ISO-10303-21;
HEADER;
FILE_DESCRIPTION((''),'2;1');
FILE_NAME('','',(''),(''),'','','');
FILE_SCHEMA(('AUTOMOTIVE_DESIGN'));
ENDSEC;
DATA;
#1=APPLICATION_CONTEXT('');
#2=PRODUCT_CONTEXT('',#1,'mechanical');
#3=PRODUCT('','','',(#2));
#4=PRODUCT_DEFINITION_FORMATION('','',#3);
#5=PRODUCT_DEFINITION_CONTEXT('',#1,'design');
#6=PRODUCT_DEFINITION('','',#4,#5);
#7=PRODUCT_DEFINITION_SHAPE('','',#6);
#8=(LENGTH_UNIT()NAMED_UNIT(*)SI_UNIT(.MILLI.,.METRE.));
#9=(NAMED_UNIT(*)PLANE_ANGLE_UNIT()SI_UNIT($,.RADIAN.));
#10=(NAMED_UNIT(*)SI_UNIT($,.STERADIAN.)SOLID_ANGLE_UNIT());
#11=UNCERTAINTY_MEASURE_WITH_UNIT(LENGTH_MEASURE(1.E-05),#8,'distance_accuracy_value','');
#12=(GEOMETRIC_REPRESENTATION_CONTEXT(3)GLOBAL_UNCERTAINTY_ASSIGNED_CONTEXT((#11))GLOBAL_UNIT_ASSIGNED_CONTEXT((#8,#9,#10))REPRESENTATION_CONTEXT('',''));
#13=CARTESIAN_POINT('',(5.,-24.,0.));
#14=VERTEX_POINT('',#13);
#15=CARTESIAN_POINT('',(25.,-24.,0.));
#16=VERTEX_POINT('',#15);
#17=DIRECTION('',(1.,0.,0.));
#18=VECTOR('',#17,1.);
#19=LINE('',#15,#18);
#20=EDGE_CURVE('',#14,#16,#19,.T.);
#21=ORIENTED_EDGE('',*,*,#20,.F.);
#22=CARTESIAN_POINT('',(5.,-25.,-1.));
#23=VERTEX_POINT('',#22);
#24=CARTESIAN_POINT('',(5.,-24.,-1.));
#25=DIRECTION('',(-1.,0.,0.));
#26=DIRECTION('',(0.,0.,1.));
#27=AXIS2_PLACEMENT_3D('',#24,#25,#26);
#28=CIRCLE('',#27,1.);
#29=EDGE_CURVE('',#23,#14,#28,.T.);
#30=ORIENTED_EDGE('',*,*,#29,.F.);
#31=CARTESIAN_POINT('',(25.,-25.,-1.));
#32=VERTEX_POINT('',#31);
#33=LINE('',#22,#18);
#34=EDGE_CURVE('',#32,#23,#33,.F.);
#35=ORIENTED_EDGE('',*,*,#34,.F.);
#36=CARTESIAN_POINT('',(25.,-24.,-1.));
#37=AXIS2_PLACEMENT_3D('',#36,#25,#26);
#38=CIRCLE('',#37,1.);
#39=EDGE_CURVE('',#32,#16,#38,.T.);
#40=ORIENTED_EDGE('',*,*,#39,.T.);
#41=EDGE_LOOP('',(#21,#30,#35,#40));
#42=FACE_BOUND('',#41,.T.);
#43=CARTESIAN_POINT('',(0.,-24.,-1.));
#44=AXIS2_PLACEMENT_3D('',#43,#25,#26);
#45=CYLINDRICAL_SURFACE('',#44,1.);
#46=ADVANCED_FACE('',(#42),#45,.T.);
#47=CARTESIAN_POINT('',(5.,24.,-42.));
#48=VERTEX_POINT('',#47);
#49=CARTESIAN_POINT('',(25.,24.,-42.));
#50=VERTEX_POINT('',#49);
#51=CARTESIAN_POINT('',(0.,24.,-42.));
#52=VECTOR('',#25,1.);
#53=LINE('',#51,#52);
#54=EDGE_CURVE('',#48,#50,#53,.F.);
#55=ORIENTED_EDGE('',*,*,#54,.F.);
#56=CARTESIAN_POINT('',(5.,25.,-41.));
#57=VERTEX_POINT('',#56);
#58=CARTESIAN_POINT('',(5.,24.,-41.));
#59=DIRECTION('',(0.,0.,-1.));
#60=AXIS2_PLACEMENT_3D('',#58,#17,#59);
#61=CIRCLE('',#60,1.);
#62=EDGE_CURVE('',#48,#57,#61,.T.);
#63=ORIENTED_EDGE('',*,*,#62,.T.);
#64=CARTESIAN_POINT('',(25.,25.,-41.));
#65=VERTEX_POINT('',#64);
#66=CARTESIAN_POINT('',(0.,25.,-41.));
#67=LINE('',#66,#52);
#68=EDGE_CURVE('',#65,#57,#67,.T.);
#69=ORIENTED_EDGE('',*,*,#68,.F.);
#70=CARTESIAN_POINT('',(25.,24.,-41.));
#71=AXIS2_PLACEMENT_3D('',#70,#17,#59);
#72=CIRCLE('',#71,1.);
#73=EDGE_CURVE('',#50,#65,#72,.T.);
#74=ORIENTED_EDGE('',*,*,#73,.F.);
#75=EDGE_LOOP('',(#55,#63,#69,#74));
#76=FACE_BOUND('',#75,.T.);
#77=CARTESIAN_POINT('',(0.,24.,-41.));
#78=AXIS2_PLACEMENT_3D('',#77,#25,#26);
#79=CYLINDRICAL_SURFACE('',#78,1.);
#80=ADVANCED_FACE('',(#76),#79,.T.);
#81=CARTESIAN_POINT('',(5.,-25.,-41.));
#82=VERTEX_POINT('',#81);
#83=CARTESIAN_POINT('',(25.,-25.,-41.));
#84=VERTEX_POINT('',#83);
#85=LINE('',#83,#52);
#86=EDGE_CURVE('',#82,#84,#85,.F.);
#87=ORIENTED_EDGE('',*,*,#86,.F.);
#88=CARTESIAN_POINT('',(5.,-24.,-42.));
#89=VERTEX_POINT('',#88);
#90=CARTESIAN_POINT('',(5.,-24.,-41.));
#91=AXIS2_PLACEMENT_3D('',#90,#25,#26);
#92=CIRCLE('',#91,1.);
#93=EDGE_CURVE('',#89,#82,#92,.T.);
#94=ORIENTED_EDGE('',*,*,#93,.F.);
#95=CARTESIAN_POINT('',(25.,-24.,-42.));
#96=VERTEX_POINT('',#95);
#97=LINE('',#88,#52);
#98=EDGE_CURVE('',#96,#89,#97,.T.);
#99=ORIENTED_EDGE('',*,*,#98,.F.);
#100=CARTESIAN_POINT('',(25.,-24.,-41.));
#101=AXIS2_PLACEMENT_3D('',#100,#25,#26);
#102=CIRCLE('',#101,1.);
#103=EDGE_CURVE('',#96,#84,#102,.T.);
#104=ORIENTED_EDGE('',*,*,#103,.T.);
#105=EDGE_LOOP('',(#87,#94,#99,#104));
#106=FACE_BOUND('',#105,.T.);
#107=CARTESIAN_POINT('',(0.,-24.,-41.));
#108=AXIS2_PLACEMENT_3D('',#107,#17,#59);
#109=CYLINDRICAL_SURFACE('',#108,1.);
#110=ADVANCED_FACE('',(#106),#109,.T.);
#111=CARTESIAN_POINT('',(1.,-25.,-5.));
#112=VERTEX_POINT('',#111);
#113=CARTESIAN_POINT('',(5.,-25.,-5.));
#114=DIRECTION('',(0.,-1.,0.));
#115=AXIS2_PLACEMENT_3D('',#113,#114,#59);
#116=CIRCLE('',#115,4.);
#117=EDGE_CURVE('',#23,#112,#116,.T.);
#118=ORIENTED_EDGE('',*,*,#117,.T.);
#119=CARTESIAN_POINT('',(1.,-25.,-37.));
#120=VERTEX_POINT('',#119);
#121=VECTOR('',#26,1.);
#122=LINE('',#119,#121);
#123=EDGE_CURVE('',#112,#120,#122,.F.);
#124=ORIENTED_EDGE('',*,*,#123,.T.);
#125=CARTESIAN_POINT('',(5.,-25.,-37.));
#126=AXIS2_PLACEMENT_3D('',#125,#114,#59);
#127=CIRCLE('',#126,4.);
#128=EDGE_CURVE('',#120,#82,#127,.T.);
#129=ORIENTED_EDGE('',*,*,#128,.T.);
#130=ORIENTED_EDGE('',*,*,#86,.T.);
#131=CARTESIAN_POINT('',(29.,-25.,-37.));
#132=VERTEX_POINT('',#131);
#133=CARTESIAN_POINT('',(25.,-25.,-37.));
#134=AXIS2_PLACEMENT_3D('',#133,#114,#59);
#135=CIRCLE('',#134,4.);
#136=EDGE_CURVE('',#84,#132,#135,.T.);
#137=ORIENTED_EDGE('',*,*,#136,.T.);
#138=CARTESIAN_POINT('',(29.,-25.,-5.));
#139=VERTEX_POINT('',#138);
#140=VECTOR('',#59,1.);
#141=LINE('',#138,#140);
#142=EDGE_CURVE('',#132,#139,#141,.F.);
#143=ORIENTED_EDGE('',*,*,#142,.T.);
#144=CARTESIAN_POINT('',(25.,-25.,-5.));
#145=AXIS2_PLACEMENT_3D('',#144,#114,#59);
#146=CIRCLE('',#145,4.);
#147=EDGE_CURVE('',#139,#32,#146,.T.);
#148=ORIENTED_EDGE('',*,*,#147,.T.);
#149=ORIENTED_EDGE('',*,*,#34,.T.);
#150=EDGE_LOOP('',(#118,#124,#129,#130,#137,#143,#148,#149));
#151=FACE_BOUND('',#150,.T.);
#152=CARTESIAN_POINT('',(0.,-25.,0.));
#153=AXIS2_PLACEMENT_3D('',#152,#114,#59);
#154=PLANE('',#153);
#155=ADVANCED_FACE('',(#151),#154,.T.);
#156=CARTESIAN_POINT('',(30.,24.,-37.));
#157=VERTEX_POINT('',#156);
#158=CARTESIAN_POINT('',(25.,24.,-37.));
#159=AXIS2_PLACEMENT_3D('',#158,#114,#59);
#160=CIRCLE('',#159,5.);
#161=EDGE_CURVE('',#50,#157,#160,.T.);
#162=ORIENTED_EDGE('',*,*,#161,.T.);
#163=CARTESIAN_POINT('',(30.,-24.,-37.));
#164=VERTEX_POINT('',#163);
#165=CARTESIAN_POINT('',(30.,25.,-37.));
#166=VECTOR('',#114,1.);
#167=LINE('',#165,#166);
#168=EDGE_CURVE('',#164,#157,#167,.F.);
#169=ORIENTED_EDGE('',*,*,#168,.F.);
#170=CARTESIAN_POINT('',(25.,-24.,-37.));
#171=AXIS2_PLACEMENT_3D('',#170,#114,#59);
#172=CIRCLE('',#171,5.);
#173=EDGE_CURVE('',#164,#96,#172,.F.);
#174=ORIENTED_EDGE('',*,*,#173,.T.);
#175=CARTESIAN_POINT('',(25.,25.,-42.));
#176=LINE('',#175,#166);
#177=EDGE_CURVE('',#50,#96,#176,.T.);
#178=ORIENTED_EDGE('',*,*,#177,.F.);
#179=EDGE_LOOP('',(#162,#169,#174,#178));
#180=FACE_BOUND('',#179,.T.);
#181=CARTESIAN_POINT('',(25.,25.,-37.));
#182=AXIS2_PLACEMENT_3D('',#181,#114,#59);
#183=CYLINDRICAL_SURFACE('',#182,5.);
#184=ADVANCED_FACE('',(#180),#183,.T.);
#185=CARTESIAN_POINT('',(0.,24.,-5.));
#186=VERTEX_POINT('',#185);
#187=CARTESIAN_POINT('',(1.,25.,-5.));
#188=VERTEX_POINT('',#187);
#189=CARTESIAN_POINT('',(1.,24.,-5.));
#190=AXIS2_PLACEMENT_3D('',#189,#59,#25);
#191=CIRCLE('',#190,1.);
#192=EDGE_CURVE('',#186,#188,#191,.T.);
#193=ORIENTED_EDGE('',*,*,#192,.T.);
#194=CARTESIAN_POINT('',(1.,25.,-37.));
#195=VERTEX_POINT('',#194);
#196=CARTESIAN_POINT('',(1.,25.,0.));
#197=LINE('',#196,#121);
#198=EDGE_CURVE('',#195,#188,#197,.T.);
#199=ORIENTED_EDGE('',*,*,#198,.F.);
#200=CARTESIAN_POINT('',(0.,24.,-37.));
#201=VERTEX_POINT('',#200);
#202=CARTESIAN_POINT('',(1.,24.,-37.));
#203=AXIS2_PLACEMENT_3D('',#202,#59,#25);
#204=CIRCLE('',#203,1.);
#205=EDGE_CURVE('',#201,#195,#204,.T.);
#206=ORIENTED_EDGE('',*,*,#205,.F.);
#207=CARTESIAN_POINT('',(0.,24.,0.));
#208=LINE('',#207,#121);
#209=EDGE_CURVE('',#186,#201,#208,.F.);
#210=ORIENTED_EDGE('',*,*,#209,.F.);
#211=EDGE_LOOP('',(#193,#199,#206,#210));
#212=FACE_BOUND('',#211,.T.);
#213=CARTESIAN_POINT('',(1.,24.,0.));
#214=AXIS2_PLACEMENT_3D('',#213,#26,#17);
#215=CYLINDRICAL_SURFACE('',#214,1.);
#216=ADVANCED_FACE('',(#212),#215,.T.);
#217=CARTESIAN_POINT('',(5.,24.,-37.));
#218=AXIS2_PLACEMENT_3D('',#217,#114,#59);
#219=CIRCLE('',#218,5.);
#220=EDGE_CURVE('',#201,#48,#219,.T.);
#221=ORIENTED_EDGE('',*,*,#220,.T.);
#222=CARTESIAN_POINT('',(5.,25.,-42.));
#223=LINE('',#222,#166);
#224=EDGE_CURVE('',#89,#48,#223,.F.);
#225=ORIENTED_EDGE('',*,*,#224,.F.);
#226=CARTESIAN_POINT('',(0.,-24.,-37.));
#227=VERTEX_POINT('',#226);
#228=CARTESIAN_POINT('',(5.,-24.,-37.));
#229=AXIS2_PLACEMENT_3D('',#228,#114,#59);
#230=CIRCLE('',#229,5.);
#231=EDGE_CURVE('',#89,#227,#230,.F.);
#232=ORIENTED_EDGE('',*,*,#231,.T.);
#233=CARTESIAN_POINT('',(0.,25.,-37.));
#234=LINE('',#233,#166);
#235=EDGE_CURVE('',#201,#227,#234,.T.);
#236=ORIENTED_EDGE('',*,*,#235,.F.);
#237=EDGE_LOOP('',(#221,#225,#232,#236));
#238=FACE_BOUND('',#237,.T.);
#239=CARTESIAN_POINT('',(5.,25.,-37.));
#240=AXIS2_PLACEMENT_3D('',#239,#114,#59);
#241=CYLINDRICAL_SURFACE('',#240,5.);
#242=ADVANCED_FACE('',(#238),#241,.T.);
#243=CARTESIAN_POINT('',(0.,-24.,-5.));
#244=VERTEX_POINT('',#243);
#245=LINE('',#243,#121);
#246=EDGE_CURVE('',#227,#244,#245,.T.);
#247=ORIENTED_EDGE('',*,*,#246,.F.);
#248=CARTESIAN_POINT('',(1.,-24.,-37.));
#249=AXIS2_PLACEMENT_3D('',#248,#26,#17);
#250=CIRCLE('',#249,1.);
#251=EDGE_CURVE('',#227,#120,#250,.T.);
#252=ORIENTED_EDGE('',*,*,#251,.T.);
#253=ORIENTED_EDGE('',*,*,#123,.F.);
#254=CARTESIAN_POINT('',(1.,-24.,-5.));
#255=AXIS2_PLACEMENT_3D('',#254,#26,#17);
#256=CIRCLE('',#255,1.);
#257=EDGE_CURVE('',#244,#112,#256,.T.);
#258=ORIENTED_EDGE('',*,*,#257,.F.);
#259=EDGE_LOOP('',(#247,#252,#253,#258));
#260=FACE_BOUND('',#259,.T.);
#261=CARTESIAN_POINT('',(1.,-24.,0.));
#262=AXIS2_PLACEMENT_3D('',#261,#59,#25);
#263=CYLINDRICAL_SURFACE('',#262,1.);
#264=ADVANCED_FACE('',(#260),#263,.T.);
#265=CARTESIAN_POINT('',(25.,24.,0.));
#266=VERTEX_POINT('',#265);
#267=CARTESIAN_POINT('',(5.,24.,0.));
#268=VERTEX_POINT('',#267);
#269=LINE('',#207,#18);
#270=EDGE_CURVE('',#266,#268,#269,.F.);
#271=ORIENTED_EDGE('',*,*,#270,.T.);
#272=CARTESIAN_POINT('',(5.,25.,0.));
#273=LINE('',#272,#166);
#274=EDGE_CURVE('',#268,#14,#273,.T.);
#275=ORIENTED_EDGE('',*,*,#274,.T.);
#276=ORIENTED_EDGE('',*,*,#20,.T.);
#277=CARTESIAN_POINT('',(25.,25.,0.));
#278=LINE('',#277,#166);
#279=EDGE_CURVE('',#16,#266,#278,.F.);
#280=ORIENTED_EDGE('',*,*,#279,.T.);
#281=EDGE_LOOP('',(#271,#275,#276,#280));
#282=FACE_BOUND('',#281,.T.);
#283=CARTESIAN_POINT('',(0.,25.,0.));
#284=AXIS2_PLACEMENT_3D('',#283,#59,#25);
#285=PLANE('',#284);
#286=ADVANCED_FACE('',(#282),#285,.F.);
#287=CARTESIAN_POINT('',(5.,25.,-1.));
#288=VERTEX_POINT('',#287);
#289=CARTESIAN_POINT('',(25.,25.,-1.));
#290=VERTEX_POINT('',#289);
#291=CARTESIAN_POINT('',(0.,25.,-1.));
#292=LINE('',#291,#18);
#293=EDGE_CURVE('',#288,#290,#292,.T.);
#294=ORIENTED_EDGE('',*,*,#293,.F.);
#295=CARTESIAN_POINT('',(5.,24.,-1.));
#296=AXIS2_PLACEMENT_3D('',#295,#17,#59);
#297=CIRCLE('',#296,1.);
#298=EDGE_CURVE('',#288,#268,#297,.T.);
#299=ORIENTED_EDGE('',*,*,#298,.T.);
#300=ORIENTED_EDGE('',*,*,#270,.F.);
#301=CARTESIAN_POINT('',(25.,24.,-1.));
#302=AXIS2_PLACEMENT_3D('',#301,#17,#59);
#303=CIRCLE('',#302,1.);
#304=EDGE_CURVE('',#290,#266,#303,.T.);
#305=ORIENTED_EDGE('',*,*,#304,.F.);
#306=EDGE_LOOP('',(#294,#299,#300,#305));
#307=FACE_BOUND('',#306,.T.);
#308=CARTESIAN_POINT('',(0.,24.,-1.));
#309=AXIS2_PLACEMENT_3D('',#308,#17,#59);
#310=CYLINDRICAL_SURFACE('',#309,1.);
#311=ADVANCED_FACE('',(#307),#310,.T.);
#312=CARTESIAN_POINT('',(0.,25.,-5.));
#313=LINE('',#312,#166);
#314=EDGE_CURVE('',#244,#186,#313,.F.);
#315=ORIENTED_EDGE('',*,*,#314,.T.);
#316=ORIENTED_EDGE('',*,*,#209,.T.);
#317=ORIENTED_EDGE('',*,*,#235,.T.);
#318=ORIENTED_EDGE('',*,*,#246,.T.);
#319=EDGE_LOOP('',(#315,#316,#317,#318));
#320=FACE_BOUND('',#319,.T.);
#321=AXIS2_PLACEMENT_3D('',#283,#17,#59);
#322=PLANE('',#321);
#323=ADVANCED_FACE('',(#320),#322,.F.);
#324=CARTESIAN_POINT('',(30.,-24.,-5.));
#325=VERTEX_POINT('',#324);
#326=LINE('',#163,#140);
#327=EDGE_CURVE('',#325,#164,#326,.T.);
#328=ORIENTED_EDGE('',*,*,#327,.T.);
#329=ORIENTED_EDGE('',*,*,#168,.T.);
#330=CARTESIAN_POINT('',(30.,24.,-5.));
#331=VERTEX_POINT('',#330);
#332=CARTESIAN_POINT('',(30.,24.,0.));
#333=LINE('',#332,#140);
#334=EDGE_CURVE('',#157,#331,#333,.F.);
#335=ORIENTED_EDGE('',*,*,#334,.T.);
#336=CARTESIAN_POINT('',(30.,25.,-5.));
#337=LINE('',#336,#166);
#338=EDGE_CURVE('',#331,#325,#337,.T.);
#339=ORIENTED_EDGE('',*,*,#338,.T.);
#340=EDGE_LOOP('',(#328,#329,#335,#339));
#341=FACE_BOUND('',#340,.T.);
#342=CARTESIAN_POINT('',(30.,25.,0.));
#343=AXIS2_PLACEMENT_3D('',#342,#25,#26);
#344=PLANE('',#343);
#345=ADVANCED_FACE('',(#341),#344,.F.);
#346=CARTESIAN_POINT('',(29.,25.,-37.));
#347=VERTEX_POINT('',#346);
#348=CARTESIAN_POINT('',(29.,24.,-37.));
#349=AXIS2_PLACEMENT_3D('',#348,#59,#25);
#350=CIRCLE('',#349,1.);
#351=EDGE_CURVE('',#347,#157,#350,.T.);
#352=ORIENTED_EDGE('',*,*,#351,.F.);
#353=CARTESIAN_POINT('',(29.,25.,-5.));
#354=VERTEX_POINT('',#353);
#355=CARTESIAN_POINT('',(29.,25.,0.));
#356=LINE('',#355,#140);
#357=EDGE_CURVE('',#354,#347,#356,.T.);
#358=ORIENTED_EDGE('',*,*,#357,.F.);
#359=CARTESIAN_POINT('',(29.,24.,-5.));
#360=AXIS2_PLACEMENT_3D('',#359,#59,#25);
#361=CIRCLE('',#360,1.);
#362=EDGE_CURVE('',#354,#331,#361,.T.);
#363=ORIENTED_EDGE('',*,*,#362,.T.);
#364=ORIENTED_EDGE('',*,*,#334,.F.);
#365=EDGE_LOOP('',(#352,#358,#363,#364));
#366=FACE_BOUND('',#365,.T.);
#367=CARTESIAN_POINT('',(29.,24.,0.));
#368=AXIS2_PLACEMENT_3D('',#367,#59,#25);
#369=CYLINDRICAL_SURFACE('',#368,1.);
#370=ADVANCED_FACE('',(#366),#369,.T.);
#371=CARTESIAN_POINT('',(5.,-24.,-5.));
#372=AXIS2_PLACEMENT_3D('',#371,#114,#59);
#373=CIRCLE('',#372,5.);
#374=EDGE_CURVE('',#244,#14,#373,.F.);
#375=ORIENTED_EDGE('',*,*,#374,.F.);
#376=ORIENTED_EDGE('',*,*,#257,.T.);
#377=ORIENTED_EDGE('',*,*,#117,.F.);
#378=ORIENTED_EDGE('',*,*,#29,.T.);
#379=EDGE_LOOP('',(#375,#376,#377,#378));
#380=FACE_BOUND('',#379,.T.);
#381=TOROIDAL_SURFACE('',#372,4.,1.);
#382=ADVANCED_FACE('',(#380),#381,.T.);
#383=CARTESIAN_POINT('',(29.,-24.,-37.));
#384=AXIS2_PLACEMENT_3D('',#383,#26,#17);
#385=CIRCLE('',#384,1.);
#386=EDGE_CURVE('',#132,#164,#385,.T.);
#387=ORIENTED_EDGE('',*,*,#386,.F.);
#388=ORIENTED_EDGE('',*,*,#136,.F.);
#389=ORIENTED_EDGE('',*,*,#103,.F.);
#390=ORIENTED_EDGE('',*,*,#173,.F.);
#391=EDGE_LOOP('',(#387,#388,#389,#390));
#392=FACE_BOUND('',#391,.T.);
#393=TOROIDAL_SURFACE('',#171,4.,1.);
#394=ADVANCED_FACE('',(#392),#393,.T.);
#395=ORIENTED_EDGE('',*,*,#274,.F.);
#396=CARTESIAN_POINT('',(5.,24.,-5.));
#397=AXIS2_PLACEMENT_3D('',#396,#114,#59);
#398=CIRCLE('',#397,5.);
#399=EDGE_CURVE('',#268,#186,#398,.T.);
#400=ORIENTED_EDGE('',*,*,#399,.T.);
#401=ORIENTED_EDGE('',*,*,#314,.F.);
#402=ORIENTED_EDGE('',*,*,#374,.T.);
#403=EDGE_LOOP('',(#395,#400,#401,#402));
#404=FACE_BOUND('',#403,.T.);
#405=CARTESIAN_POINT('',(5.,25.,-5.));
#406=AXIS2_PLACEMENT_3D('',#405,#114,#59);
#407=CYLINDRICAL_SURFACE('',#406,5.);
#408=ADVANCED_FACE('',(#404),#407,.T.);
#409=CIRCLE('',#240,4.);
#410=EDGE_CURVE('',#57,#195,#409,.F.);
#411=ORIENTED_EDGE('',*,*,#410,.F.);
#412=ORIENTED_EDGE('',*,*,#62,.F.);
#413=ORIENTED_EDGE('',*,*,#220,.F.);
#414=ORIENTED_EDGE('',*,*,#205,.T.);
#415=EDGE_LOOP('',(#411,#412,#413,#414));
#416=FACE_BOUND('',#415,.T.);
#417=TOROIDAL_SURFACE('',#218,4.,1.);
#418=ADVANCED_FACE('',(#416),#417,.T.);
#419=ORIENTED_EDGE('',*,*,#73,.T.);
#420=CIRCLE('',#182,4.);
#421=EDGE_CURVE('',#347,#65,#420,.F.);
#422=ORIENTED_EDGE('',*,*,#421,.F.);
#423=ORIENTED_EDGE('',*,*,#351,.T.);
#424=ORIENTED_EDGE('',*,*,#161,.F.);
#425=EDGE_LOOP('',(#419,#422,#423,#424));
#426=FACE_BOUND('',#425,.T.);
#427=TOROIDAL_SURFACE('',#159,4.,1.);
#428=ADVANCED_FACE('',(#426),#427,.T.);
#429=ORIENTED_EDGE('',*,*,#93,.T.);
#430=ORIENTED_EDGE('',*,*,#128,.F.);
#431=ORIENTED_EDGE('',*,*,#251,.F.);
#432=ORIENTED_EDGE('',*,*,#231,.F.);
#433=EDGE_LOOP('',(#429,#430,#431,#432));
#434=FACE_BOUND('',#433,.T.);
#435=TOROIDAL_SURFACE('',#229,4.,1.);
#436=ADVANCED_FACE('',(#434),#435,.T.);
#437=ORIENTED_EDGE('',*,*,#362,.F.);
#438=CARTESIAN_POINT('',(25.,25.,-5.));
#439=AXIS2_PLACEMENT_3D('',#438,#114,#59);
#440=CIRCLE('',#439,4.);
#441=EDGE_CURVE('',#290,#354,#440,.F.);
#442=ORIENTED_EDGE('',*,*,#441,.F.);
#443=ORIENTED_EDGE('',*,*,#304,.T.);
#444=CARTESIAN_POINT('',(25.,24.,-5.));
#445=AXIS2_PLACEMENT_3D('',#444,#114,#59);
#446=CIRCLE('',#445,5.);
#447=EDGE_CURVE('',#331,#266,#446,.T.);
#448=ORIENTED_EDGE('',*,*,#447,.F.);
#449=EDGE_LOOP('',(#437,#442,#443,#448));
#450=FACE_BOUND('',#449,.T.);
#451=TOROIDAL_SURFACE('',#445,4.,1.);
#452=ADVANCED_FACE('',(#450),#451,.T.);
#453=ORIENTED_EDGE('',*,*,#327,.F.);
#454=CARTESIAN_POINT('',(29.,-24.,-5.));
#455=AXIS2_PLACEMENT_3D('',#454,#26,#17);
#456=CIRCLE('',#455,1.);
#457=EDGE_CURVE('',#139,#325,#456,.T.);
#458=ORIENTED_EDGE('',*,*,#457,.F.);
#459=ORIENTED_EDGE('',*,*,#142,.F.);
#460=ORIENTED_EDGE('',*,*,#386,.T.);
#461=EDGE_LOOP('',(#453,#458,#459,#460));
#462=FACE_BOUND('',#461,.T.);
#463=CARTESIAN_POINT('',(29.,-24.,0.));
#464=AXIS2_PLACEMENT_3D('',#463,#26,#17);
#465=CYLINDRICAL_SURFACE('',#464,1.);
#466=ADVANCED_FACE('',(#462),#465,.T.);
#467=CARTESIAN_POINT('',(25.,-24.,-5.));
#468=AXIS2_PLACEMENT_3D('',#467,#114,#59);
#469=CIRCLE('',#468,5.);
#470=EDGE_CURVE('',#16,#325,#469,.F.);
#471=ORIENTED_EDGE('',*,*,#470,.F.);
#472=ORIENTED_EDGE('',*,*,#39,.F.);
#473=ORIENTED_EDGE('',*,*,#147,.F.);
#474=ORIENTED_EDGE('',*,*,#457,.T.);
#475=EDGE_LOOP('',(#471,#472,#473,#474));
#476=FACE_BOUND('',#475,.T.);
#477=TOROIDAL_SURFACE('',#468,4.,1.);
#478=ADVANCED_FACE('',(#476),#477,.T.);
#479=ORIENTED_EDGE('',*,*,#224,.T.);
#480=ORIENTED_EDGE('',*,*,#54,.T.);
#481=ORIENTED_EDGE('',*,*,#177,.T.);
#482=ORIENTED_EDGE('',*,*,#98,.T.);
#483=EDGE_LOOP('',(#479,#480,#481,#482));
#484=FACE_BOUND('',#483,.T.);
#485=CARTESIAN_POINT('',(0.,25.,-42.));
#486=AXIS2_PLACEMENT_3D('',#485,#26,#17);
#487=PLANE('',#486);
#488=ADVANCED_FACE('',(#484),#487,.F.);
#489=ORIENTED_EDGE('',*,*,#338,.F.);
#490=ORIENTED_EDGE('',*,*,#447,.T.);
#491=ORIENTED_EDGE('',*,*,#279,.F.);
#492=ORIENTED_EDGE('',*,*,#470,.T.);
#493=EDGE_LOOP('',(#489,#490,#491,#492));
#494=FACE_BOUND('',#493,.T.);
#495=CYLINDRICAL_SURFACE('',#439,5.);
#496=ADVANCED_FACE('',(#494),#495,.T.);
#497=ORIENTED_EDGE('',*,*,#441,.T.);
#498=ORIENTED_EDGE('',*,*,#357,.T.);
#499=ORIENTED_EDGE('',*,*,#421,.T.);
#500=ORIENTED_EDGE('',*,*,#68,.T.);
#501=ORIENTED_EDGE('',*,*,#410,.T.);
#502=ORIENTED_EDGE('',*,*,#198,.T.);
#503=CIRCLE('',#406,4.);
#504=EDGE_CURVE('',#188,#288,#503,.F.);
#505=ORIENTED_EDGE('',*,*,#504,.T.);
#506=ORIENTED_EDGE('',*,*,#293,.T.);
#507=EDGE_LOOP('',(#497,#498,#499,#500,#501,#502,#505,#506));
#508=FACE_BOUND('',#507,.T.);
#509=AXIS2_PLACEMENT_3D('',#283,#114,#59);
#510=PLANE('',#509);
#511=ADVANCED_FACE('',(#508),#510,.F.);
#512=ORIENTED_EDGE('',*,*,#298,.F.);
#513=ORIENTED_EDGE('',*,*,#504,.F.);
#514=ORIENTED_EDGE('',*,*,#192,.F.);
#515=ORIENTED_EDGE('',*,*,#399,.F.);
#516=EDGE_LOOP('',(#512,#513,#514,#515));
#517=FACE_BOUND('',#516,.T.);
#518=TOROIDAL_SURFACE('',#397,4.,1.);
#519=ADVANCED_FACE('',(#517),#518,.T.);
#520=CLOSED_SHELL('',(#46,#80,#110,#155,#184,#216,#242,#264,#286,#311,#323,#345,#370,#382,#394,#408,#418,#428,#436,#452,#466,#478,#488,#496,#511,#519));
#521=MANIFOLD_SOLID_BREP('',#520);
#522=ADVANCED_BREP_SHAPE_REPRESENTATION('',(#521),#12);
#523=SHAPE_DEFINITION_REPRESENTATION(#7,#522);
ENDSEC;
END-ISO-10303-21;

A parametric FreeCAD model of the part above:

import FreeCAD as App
import Part
import Sketcher
Q = App.Units.Quantity


def edges_at(feature, points):
    """Names of the edges that pass closest to the given points."""
    edges = feature.Shape.Edges
    near = lambda p: min(range(len(edges)), key=lambda i: edges[i].distToShape(Part.Vertex(*p))[0])
    return sorted({f"Edge{near(p) + 1}" for p in points})


def add_polygon(sketch, points):
    """Adds a closed chain of lines whose ends are joined by coincident constraints."""
    first, n = sketch.GeometryCount, len(points)
    for a, b in zip(points, points[1:] + points[:1]):
        sketch.addGeometry(Part.LineSegment(App.Vector(*a, 0), App.Vector(*b, 0)), False)
    for i in range(n):
        sketch.addConstraint(Sketcher.Constraint("Coincident", first + i, 2, first + (i + 1) % n, 1))

doc = App.newDocument("Part")
body = doc.addObject("PartDesign::Body", "Body")

# Sketch on XZ plane
sketch1 = body.newObject("Sketcher::SketchObject", "Sketch")
sketch1.AttachmentSupport = (doc.getObject("XZ_Plane"), [""])
sketch1.MapMode = "FlatFace"
add_polygon(sketch1, [(0, -42), (0, 0), (30, 0), (30, -42)])  # lines 0-3
sketch1.addConstraint([
    Sketcher.Constraint("Vertical", 0),
    Sketcher.Constraint("Horizontal", 1),
    Sketcher.Constraint("Vertical", 2),
    Sketcher.Constraint("Horizontal", 3),
    Sketcher.Constraint("Coincident", 0, 2, -1, 1),
    Sketcher.Constraint("DistanceX", 1, 1, 1, 2, Q("30 mm")),
    Sketcher.Constraint("DistanceY", 0, 1, 0, 2, Q("42 mm")),
])
pad1 = body.newObject("PartDesign::Pad", "Pad")
pad1.Profile = sketch1
pad1.Length = 50
pad1.Midplane = True
doc.recompute()

fillet = body.newObject("PartDesign::Fillet", "Fillet")
fillet.Base = (pad1, edges_at(pad1, [
    (0, 0, -42),
    (30, 0, -42),
    (30, 0, 0),
    (0, 0, 0),
]))
fillet.Radius = 5
doc.recompute()

fillet2 = body.newObject("PartDesign::Fillet", "Fillet001")
fillet2.Base = (fillet, edges_at(fillet, [
    (0, 25, -21),
    (15, 25, -42),
    (15, 25, 0),
    (30, 25, -21),
    (28.536, 25, -1.464),
    (28.536, 25, -40.536),
    (1.464, 25, -1.464),
    (1.464, 25, -40.536),
]))
fillet2.Radius = 1
doc.recompute()

fillet3 = body.newObject("PartDesign::Fillet", "Fillet002")
fillet3.Base = (fillet2, edges_at(fillet2, [
    (0, -25, -21),
    (15, -25, -42),
    (30, -25, -21),
    (15, -25, 0),
    (28.536, -25, -1.464),
    (28.536, -25, -40.536),
    (1.464, -25, -1.464),
    (1.464, -25, -40.536),
]))
fillet3.Radius = 1

doc.recompute()
